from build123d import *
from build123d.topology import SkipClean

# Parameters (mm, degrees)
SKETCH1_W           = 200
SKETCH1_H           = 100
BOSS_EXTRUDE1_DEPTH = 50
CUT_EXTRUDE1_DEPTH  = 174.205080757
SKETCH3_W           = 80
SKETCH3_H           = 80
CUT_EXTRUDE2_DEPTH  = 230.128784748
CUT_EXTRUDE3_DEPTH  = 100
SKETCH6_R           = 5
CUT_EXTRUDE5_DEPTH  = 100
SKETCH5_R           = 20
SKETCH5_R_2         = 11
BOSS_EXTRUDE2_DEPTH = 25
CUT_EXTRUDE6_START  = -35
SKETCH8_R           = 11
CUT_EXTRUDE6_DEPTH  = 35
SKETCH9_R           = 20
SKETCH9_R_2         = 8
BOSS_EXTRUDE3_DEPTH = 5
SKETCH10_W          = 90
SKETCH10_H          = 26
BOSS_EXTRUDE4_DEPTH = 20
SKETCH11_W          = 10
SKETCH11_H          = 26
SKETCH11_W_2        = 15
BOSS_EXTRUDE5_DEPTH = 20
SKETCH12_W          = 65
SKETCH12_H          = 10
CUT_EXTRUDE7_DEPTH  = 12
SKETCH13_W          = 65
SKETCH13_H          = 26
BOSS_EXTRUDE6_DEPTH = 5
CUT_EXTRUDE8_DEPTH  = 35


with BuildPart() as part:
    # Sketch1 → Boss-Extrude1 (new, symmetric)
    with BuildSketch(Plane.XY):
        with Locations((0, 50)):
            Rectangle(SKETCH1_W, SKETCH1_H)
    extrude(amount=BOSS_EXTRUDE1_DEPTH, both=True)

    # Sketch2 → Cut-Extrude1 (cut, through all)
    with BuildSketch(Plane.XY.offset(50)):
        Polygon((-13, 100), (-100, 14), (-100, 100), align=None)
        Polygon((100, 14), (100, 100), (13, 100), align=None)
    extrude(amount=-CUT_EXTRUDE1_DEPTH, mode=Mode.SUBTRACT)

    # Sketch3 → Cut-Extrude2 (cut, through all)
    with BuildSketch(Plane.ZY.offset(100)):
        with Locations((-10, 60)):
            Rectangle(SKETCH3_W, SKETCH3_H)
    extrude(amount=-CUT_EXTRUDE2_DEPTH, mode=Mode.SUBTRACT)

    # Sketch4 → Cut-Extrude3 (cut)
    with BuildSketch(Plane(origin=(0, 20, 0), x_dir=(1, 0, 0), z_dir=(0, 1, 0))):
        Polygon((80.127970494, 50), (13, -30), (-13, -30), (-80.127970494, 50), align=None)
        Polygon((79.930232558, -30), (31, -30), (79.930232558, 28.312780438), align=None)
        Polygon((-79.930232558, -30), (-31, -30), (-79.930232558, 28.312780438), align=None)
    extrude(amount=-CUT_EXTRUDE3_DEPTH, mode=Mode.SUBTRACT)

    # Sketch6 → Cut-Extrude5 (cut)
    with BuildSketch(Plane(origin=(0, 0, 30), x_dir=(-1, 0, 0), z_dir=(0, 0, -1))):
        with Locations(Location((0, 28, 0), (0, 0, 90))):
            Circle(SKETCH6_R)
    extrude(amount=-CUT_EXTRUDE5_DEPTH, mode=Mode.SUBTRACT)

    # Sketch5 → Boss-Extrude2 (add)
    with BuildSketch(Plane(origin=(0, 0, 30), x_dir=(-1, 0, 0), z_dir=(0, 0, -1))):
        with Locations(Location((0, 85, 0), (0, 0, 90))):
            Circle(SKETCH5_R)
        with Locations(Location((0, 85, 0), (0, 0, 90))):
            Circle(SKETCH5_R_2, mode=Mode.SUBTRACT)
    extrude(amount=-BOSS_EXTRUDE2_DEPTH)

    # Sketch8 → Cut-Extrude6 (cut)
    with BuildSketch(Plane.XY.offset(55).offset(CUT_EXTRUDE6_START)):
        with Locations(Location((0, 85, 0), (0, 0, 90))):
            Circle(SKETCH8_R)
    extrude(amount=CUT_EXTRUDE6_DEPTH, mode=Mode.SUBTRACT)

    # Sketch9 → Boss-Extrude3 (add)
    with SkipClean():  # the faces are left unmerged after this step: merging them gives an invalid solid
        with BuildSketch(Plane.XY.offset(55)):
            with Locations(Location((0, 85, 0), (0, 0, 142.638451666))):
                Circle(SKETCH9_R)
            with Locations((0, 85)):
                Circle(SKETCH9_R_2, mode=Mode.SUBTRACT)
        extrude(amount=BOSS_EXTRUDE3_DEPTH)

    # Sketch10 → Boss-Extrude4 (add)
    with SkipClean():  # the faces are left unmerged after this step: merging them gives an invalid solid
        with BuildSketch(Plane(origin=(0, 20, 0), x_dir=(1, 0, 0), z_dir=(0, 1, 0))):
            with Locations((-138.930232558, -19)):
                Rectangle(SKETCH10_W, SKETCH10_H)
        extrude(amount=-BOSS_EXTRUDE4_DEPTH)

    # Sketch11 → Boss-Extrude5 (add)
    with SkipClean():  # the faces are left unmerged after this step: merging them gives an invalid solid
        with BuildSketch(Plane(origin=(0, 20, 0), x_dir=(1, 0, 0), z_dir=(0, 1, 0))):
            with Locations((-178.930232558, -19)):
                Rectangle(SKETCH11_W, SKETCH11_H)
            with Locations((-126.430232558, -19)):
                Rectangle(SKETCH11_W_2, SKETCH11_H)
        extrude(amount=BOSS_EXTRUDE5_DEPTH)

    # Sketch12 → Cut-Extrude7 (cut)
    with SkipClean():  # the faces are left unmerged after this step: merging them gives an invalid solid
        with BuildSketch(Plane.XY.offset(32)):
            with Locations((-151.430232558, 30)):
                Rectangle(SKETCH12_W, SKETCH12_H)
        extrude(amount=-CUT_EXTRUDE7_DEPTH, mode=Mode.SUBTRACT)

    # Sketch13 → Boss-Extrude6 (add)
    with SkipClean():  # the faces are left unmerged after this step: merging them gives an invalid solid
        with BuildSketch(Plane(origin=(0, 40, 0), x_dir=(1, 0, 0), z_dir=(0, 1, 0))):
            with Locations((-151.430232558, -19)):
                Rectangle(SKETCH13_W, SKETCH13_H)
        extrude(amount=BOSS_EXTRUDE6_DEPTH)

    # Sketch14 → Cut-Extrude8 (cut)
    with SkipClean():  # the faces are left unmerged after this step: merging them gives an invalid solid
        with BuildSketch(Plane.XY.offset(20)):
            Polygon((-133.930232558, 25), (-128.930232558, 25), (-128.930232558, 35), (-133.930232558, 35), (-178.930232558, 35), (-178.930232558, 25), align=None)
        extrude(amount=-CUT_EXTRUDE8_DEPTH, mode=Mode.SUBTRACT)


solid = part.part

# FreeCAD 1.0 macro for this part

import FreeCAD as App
import Part
import Sketcher
Q = App.Units.Quantity

doc = App.newDocument("Part")
params = doc.addObject("Spreadsheet::Sheet", "Params")
for row, (alias, value) in enumerate([
    ("sketch1_width", "200 mm"),
    ("sketch1_height", "100 mm"),
    ("pad1_length", "100 mm"),
    ("sketch2_width", "87 mm"),
    ("sketch2_height", "86 mm"),
    ("sketch3_width", "80 mm"),
    ("sketch4_width", "26 mm"),
    ("pocket3_length", "100 mm"),
    ("sketch5_diameter", "10 mm"),
    ("pocket4_length", "100 mm"),
    ("sketch6_diameter", "40 mm"),
    ("sketch6_diameter2", "22 mm"),
    ("pad2_length", "25 mm"),
    ("sketch7_diameter", "22 mm"),
    ("pocket5_length", "35 mm"),
    ("sketch8_diameter", "40 mm"),
    ("sketch8_diameter2", "16 mm"),
    ("pad3_length", "5 mm"),
    ("sketch9_width", "90 mm"),
    ("sketch9_height", "26 mm"),
    ("pad4_length", "20 mm"),
    ("sketch10_width", "10 mm"),
    ("sketch10_width2", "15 mm"),
    ("sketch10_height", "26 mm"),
    ("pad5_length", "20 mm"),
    ("sketch11_width", "65 mm"),
    ("sketch11_height", "10 mm"),
    ("pocket6_length", "12 mm"),
    ("sketch12_width", "65 mm"),
    ("sketch12_height", "26 mm"),
    ("pad6_length", "5 mm"),
    ("sketch13_width", "50 mm"),
    ("sketch13_height", "10 mm"),
    ("pocket7_length", "35 mm"),
], start=1):
    params.set(f"A{row}", alias)
    params.set(f"B{row}", "=" + value)
    params.setAlias(f"B{row}", alias)

body = doc.addObject("PartDesign::Body", "Body")

# Sketch on XY plane
sketch1 = doc.addObject("Sketcher::SketchObject", "Sketch")
body.addObject(sketch1)
sketch1.AttachmentSupport = (doc.XY_Plane, [""])
sketch1.MapMode = "FlatFace"
sketch1.addGeometry([
    Part.LineSegment(App.Vector(-100, 100, 0), App.Vector(-100, 0, 0)),
    Part.LineSegment(App.Vector(-100, 0, 0), App.Vector(100, 0, 0)),
    Part.LineSegment(App.Vector(100, 0, 0), App.Vector(100, 100, 0)),
    Part.LineSegment(App.Vector(100, 100, 0), App.Vector(-100, 100, 0)),
], False)
sketch1.addConstraint([
    Sketcher.Constraint("Coincident", 0, 2, 1, 1),
    Sketcher.Constraint("Coincident", 1, 2, 2, 1),
    Sketcher.Constraint("Coincident", 2, 2, 3, 1),
    Sketcher.Constraint("Coincident", 3, 2, 0, 1),
    Sketcher.Constraint("Vertical", 0),
    Sketcher.Constraint("Horizontal", 1),
    Sketcher.Constraint("Vertical", 2),
    Sketcher.Constraint("Horizontal", 3),
    Sketcher.Constraint("Symmetric", 0, 2, 1, 2, -1, 1),
    Sketcher.Constraint("DistanceX", 1, 1, 1, 2, 200.0),
    Sketcher.Constraint("DistanceY", 0, 2, 0, 1, 100.0),
])
sketch1.setExpression("Constraints[9]", "Params.sketch1_width")
sketch1.setExpression("Constraints[10]", "Params.sketch1_height")
pad1 = doc.addObject("PartDesign::Pad", "Pad")
body.addObject(pad1)
pad1.Profile = sketch1
pad1.setExpression("Length", "Params.pad1_length")
pad1.Midplane = True

# Sketch on XY plane
sketch2 = doc.addObject("Sketcher::SketchObject", "Sketch001")
body.addObject(sketch2)
sketch2.AttachmentSupport = (doc.XY_Plane, [""])
sketch2.MapMode = "FlatFace"
sketch2.AttachmentOffset = App.Placement(App.Vector(0, 0, 50), App.Rotation())
sketch2.addGeometry([
    Part.LineSegment(App.Vector(-100, 14, 0), App.Vector(-13, 100, 0)),  # 0
    Part.LineSegment(App.Vector(-13, 100, 0), App.Vector(-100, 100, 0)),  # 1
    Part.LineSegment(App.Vector(-100, 100, 0), App.Vector(-100, 14, 0)),  # 2
    Part.LineSegment(App.Vector(100, 14, 0), App.Vector(100, 100, 0)),  # 3
    Part.LineSegment(App.Vector(100, 100, 0), App.Vector(13, 100, 0)),  # 4
    Part.LineSegment(App.Vector(13, 100, 0), App.Vector(100, 14, 0)),  # 5
], False)
sketch2.addConstraint([
    Sketcher.Constraint("Coincident", 0, 2, 1, 1),
    Sketcher.Constraint("Coincident", 1, 2, 2, 1),
    Sketcher.Constraint("Coincident", 2, 2, 0, 1),
    Sketcher.Constraint("Coincident", 3, 2, 4, 1),
    Sketcher.Constraint("Coincident", 4, 2, 5, 1),
    Sketcher.Constraint("Coincident", 5, 2, 3, 1),
    Sketcher.Constraint("Horizontal", 1),
    Sketcher.Constraint("Vertical", 2),
    Sketcher.Constraint("Vertical", 3),
    Sketcher.Constraint("Horizontal", 4),
    Sketcher.Constraint("Symmetric", 1, 2, 3, 2, -2),
    Sketcher.Constraint("Horizontal", 2, 2, 5, 2),
    Sketcher.Constraint("Equal", 1, 4),
    Sketcher.Constraint("DistanceX", 1, 2, 1, 1, 87.0),
    Sketcher.Constraint("DistanceY", 2, 2, 2, 1, 86.0),
    Sketcher.Constraint("DistanceX", 0, 2, -1, 1, 13.0),
    Sketcher.Constraint("DistanceY", -1, 1, 0, 2, 100.0),
])
sketch2.setExpression("Constraints[13]", "Params.sketch2_width")
sketch2.setExpression("Constraints[14]", "Params.sketch2_height")
pocket1 = doc.addObject("PartDesign::Pocket", "Pocket")
body.addObject(pocket1)
pocket1.Profile = sketch2
pocket1.Type = "ThroughAll"

# Sketch on YZ plane
sketch3 = doc.addObject("Sketcher::SketchObject", "Sketch002")
body.addObject(sketch3)
sketch3.AttachmentSupport = (doc.YZ_Plane, [""])
sketch3.MapMode = "FlatFace"
sketch3.AttachmentOffset = App.Placement(App.Vector(0, 0, -100), App.Rotation())
sketch3.addGeometry([
    Part.LineSegment(App.Vector(100, -50, 0), App.Vector(20, -50, 0)),
    Part.LineSegment(App.Vector(20, -50, 0), App.Vector(20, 30, 0)),
    Part.LineSegment(App.Vector(20, 30, 0), App.Vector(100, 30, 0)),
    Part.LineSegment(App.Vector(100, 30, 0), App.Vector(100, -50, 0)),
], False)
sketch3.addConstraint([
    Sketcher.Constraint("Coincident", 0, 2, 1, 1),
    Sketcher.Constraint("Coincident", 1, 2, 2, 1),
    Sketcher.Constraint("Coincident", 2, 2, 3, 1),
    Sketcher.Constraint("Coincident", 3, 2, 0, 1),
    Sketcher.Constraint("Horizontal", 0),
    Sketcher.Constraint("Vertical", 1),
    Sketcher.Constraint("Horizontal", 2),
    Sketcher.Constraint("Vertical", 3),
    Sketcher.Constraint("Equal", 2, 1),
    Sketcher.Constraint("DistanceX", 0, 2, 0, 1, 80.0),
    Sketcher.Constraint("DistanceX", -1, 1, 0, 2, 20.0),
    Sketcher.Constraint("DistanceY", 0, 2, -1, 1, 50.0),
])
sketch3.setExpression("Constraints[9]", "Params.sketch3_width")
pocket2 = doc.addObject("PartDesign::Pocket", "Pocket001")
body.addObject(pocket2)
pocket2.Profile = sketch3
pocket2.Type = "ThroughAll"
pocket2.Reversed = True

# Sketch on XZ plane
sketch4 = doc.addObject("Sketcher::SketchObject", "Sketch003")
body.addObject(sketch4)
sketch4.AttachmentSupport = (doc.XZ_Plane, [""])
sketch4.MapMode = "FlatFace"
sketch4.AttachmentOffset = App.Placement(App.Vector(0, 0, -20), App.Rotation())
sketch4.addGeometry([
    Part.LineSegment(App.Vector(13, 30, 0), App.Vector(80, -50, 0)),  # 0
    Part.LineSegment(App.Vector(80, -50, 0), App.Vector(-80, -50, 0)),  # 1
    Part.LineSegment(App.Vector(-80, -50, 0), App.Vector(-13, 30, 0)),  # 2
    Part.LineSegment(App.Vector(-13, 30, 0), App.Vector(13, 30, 0)),  # 3
    Part.LineSegment(App.Vector(31, 30, 0), App.Vector(80, 30, 0)),  # 4
    Part.LineSegment(App.Vector(80, 30, 0), App.Vector(80, -28, 0)),  # 5
    Part.LineSegment(App.Vector(80, -28, 0), App.Vector(31, 30, 0)),  # 6
    Part.LineSegment(App.Vector(-80, 30, 0), App.Vector(-31, 30, 0)),  # 7
    Part.LineSegment(App.Vector(-31, 30, 0), App.Vector(-80, -28, 0)),  # 8
    Part.LineSegment(App.Vector(-80, -28, 0), App.Vector(-80, 30, 0)),  # 9
], False)
sketch4.addConstraint([
    Sketcher.Constraint("Coincident", 0, 2, 1, 1),
    Sketcher.Constraint("Coincident", 1, 2, 2, 1),
    Sketcher.Constraint("Coincident", 2, 2, 3, 1),
    Sketcher.Constraint("Coincident", 3, 2, 0, 1),
    Sketcher.Constraint("Coincident", 4, 2, 5, 1),
    Sketcher.Constraint("Coincident", 5, 2, 6, 1),
    Sketcher.Constraint("Coincident", 6, 2, 4, 1),
    Sketcher.Constraint("Coincident", 7, 2, 8, 1),
    Sketcher.Constraint("Coincident", 8, 2, 9, 1),
    Sketcher.Constraint("Coincident", 9, 2, 7, 1),
    Sketcher.Constraint("Horizontal", 1),
    Sketcher.Constraint("Horizontal", 3),
    Sketcher.Constraint("Horizontal", 4),
    Sketcher.Constraint("Vertical", 5),
    Sketcher.Constraint("Horizontal", 7),
    Sketcher.Constraint("Vertical", 9),
    Sketcher.Constraint("Symmetric", 6, 2, 7, 2, -2),
    Sketcher.Constraint("Symmetric", 5, 2, 8, 2, -2),
    Sketcher.Constraint("Parallel", 0, 6),
    Sketcher.Constraint("Parallel", 2, 8),
    Sketcher.Constraint("Horizontal", 3, 2, 4, 2),
    Sketcher.Constraint("DistanceX", 3, 1, 3, 2, 26.0),
    Sketcher.Constraint("Angle", 0, Q("-50 deg")),
    Sketcher.Constraint("DistanceY", 0, 2, -1, 1, 50.0),
    Sketcher.Constraint("DistanceX", 2, 2, -1, 1, 13.0),
    Sketcher.Constraint("DistanceY", -1, 1, 2, 2, 30.0),
    Sketcher.Constraint("DistanceX", -1, 1, 6, 2, 31.0),
    Sketcher.Constraint("DistanceY", 5, 2, 5, 1, 58.31278),
])
sketch4.setExpression("Constraints[21]", "Params.sketch4_width")
pocket3 = doc.addObject("PartDesign::Pocket", "Pocket002")
body.addObject(pocket3)
pocket3.Profile = sketch4
pocket3.setExpression("Length", "Params.pocket3_length")
pocket3.Reversed = True

# Sketch on XY plane
sketch5 = doc.addObject("Sketcher::SketchObject", "Sketch004")
body.addObject(sketch5)
sketch5.AttachmentSupport = (doc.XY_Plane, [""])
sketch5.MapMode = "FlatFace"
sketch5.AttachmentOffset = App.Placement(App.Vector(0, 0, 30), App.Rotation())
sketch5.addGeometry(Part.Circle(App.Vector(0, 28, 0), App.Vector(0, 0, 1), 5), False)
sketch5.addConstraint([
    Sketcher.Constraint("PointOnObject", 0, 3, -2),
    Sketcher.Constraint("Diameter", 0, 10.0),
    Sketcher.Constraint("DistanceY", -1, 1, 0, 3, 28.0),
])
sketch5.setExpression("Constraints[1]", "Params.sketch5_diameter")
pocket4 = doc.addObject("PartDesign::Pocket", "Pocket003")
body.addObject(pocket4)
pocket4.Profile = sketch5
pocket4.setExpression("Length", "Params.pocket4_length")
pocket4.Reversed = True

# Sketch on XY plane
sketch6 = doc.addObject("Sketcher::SketchObject", "Sketch005")
body.addObject(sketch6)
sketch6.AttachmentSupport = (doc.XY_Plane, [""])
sketch6.MapMode = "FlatFace"
sketch6.AttachmentOffset = App.Placement(App.Vector(0, 0, 30), App.Rotation())
sketch6.addGeometry([
    Part.Circle(App.Vector(0, 85, 0), App.Vector(0, 0, 1), 20),
    Part.Circle(App.Vector(0, 85, 0), App.Vector(0, 0, 1), 11),
], False)
sketch6.addConstraint([
    Sketcher.Constraint("Coincident", 1, 3, 0, 3),
    Sketcher.Constraint("PointOnObject", 0, 3, -2),
    Sketcher.Constraint("Diameter", 0, 40.0),
    Sketcher.Constraint("Diameter", 1, 22.0),
    Sketcher.Constraint("DistanceY", -1, 1, 0, 3, 85.0),
])
sketch6.setExpression("Constraints[2]", "Params.sketch6_diameter")
sketch6.setExpression("Constraints[3]", "Params.sketch6_diameter2")
pad2 = doc.addObject("PartDesign::Pad", "Pad001")
body.addObject(pad2)
pad2.Profile = sketch6
pad2.setExpression("Length", "Params.pad2_length")

# Sketch on XY plane
sketch7 = doc.addObject("Sketcher::SketchObject", "Sketch006")
body.addObject(sketch7)
sketch7.AttachmentSupport = (doc.XY_Plane, [""])
sketch7.MapMode = "FlatFace"
sketch7.AttachmentOffset = App.Placement(App.Vector(0, 0, 20), App.Rotation())
sketch7.addGeometry(Part.Circle(App.Vector(0, 85, 0), App.Vector(0, 0, 1), 11), False)
sketch7.addConstraint([
    Sketcher.Constraint("PointOnObject", 0, 3, -2),
    Sketcher.Constraint("Diameter", 0, 22.0),
    Sketcher.Constraint("DistanceY", -1, 1, 0, 3, 85.0),
])
sketch7.setExpression("Constraints[1]", "Params.sketch7_diameter")
pocket5 = doc.addObject("PartDesign::Pocket", "Pocket004")
body.addObject(pocket5)
pocket5.Profile = sketch7
pocket5.setExpression("Length", "Params.pocket5_length")
pocket5.Reversed = True

# Sketch on XY plane
sketch8 = doc.addObject("Sketcher::SketchObject", "Sketch007")
body.addObject(sketch8)
sketch8.AttachmentSupport = (doc.XY_Plane, [""])
sketch8.MapMode = "FlatFace"
sketch8.AttachmentOffset = App.Placement(App.Vector(0, 0, 55), App.Rotation())
sketch8.addGeometry([
    Part.Circle(App.Vector(0, 85, 0), App.Vector(0, 0, 1), 20),
    Part.Circle(App.Vector(0, 85, 0), App.Vector(0, 0, 1), 8),
], False)
sketch8.addConstraint([
    Sketcher.Constraint("Coincident", 1, 3, 0, 3),
    Sketcher.Constraint("PointOnObject", 0, 3, -2),
    Sketcher.Constraint("Diameter", 0, 40.0),
    Sketcher.Constraint("Diameter", 1, 16.0),
    Sketcher.Constraint("DistanceY", -1, 1, 0, 3, 85.0),
])
sketch8.setExpression("Constraints[2]", "Params.sketch8_diameter")
sketch8.setExpression("Constraints[3]", "Params.sketch8_diameter2")
pad3 = doc.addObject("PartDesign::Pad", "Pad002")
body.addObject(pad3)
pad3.Profile = sketch8
pad3.setExpression("Length", "Params.pad3_length")

# Sketch on XZ plane
sketch9 = doc.addObject("Sketcher::SketchObject", "Sketch008")
body.addObject(sketch9)
sketch9.AttachmentSupport = (doc.XZ_Plane, [""])
sketch9.MapMode = "FlatFace"
sketch9.AttachmentOffset = App.Placement(App.Vector(0, 0, -20), App.Rotation())
sketch9.addGeometry([
    Part.LineSegment(App.Vector(-184, 6, 0), App.Vector(-184, 32, 0)),
    Part.LineSegment(App.Vector(-184, 32, 0), App.Vector(-94, 32, 0)),
    Part.LineSegment(App.Vector(-94, 32, 0), App.Vector(-94, 6, 0)),
    Part.LineSegment(App.Vector(-94, 6, 0), App.Vector(-184, 6, 0)),
], False)
sketch9.addConstraint([
    Sketcher.Constraint("Coincident", 0, 2, 1, 1),
    Sketcher.Constraint("Coincident", 1, 2, 2, 1),
    Sketcher.Constraint("Coincident", 2, 2, 3, 1),
    Sketcher.Constraint("Coincident", 3, 2, 0, 1),
    Sketcher.Constraint("Vertical", 0),
    Sketcher.Constraint("Horizontal", 1),
    Sketcher.Constraint("Vertical", 2),
    Sketcher.Constraint("Horizontal", 3),
    Sketcher.Constraint("DistanceX", 1, 1, 1, 2, 90.0),
    Sketcher.Constraint("DistanceY", 0, 1, 0, 2, 26.0),
    Sketcher.Constraint("DistanceY", -1, 1, 0, 2, 32.0),
    Sketcher.Constraint("DistanceX", 0, 2, -1, 1, 183.930233),
])
sketch9.setExpression("Constraints[8]", "Params.sketch9_width")
sketch9.setExpression("Constraints[9]", "Params.sketch9_height")
pad4 = doc.addObject("PartDesign::Pad", "Pad003")
body.addObject(pad4)
pad4.Profile = sketch9
pad4.setExpression("Length", "Params.pad4_length")

# Sketch on XZ plane
sketch10 = doc.addObject("Sketcher::SketchObject", "Sketch009")
body.addObject(sketch10)
sketch10.AttachmentSupport = (doc.XZ_Plane, [""])
sketch10.MapMode = "FlatFace"
sketch10.AttachmentOffset = App.Placement(App.Vector(0, 0, -20), App.Rotation())
sketch10.addGeometry([
    Part.LineSegment(App.Vector(-184, 6, 0), App.Vector(-184, 32, 0)),  # 0
    Part.LineSegment(App.Vector(-184, 32, 0), App.Vector(-174, 32, 0)),  # 1
    Part.LineSegment(App.Vector(-174, 32, 0), App.Vector(-174, 6, 0)),  # 2
    Part.LineSegment(App.Vector(-174, 6, 0), App.Vector(-184, 6, 0)),  # 3
    Part.LineSegment(App.Vector(-134, 6, 0), App.Vector(-134, 32, 0)),  # 4
    Part.LineSegment(App.Vector(-134, 32, 0), App.Vector(-119, 32, 0)),  # 5
    Part.LineSegment(App.Vector(-119, 32, 0), App.Vector(-119, 6, 0)),  # 6
    Part.LineSegment(App.Vector(-119, 6, 0), App.Vector(-134, 6, 0)),  # 7
], False)
sketch10.addConstraint([
    Sketcher.Constraint("Coincident", 0, 2, 1, 1),
    Sketcher.Constraint("Coincident", 1, 2, 2, 1),
    Sketcher.Constraint("Coincident", 2, 2, 3, 1),
    Sketcher.Constraint("Coincident", 3, 2, 0, 1),
    Sketcher.Constraint("Coincident", 4, 2, 5, 1),
    Sketcher.Constraint("Coincident", 5, 2, 6, 1),
    Sketcher.Constraint("Coincident", 6, 2, 7, 1),
    Sketcher.Constraint("Coincident", 7, 2, 4, 1),
    Sketcher.Constraint("Vertical", 0),
    Sketcher.Constraint("Horizontal", 1),
    Sketcher.Constraint("Vertical", 2),
    Sketcher.Constraint("Horizontal", 3),
    Sketcher.Constraint("Vertical", 4),
    Sketcher.Constraint("Horizontal", 5),
    Sketcher.Constraint("Vertical", 6),
    Sketcher.Constraint("Horizontal", 7),
    Sketcher.Constraint("Horizontal", 1, 2, 4, 2),
    Sketcher.Constraint("Horizontal", 3, 2, 6, 2),
    Sketcher.Constraint("DistanceX", 1, 1, 1, 2, 10.0),
    Sketcher.Constraint("DistanceX", 5, 1, 5, 2, 15.0),
    Sketcher.Constraint("DistanceY", 0, 1, 0, 2, 26.0),
    Sketcher.Constraint("DistanceY", -1, 1, 0, 2, 32.0),
    Sketcher.Constraint("DistanceX", 1, 2, 4, 2, 40.0),
    Sketcher.Constraint("DistanceX", 0, 2, -1, 1, 183.930233),
])
sketch10.setExpression("Constraints[18]", "Params.sketch10_width")
sketch10.setExpression("Constraints[19]", "Params.sketch10_width2")
sketch10.setExpression("Constraints[20]", "Params.sketch10_height")
pad5 = doc.addObject("PartDesign::Pad", "Pad004")
body.addObject(pad5)
pad5.Profile = sketch10
pad5.setExpression("Length", "Params.pad5_length")
pad5.Reversed = True

# Sketch on XY plane
sketch11 = doc.addObject("Sketcher::SketchObject", "Sketch010")
body.addObject(sketch11)
sketch11.AttachmentSupport = (doc.XY_Plane, [""])
sketch11.MapMode = "FlatFace"
sketch11.AttachmentOffset = App.Placement(App.Vector(0, 0, 32), App.Rotation())
sketch11.addGeometry([
    Part.LineSegment(App.Vector(-184, 35, 0), App.Vector(-184, 25, 0)),
    Part.LineSegment(App.Vector(-184, 25, 0), App.Vector(-119, 25, 0)),
    Part.LineSegment(App.Vector(-119, 25, 0), App.Vector(-119, 35, 0)),
    Part.LineSegment(App.Vector(-119, 35, 0), App.Vector(-184, 35, 0)),
], False)
sketch11.addConstraint([
    Sketcher.Constraint("Coincident", 0, 2, 1, 1),
    Sketcher.Constraint("Coincident", 1, 2, 2, 1),
    Sketcher.Constraint("Coincident", 2, 2, 3, 1),
    Sketcher.Constraint("Coincident", 3, 2, 0, 1),
    Sketcher.Constraint("Vertical", 0),
    Sketcher.Constraint("Horizontal", 1),
    Sketcher.Constraint("Vertical", 2),
    Sketcher.Constraint("Horizontal", 3),
    Sketcher.Constraint("DistanceX", 1, 1, 1, 2, 65.0),
    Sketcher.Constraint("DistanceY", 0, 2, 0, 1, 10.0),
    Sketcher.Constraint("DistanceY", -1, 1, 0, 2, 25.0),
    Sketcher.Constraint("DistanceX", 0, 2, -1, 1, 183.930233),
])
sketch11.setExpression("Constraints[8]", "Params.sketch11_width")
sketch11.setExpression("Constraints[9]", "Params.sketch11_height")
pocket6 = doc.addObject("PartDesign::Pocket", "Pocket005")
body.addObject(pocket6)
pocket6.Profile = sketch11
pocket6.setExpression("Length", "Params.pocket6_length")

# Sketch on XZ plane
sketch12 = doc.addObject("Sketcher::SketchObject", "Sketch011")
body.addObject(sketch12)
sketch12.AttachmentSupport = (doc.XZ_Plane, [""])
sketch12.MapMode = "FlatFace"
sketch12.AttachmentOffset = App.Placement(App.Vector(0, 0, -40), App.Rotation())
sketch12.addGeometry([
    Part.LineSegment(App.Vector(-184, 6, 0), App.Vector(-184, 32, 0)),
    Part.LineSegment(App.Vector(-184, 32, 0), App.Vector(-119, 32, 0)),
    Part.LineSegment(App.Vector(-119, 32, 0), App.Vector(-119, 6, 0)),
    Part.LineSegment(App.Vector(-119, 6, 0), App.Vector(-184, 6, 0)),
], False)
sketch12.addConstraint([
    Sketcher.Constraint("Coincident", 0, 2, 1, 1),
    Sketcher.Constraint("Coincident", 1, 2, 2, 1),
    Sketcher.Constraint("Coincident", 2, 2, 3, 1),
    Sketcher.Constraint("Coincident", 3, 2, 0, 1),
    Sketcher.Constraint("Vertical", 0),
    Sketcher.Constraint("Horizontal", 1),
    Sketcher.Constraint("Vertical", 2),
    Sketcher.Constraint("Horizontal", 3),
    Sketcher.Constraint("DistanceX", 1, 1, 1, 2, 65.0),
    Sketcher.Constraint("DistanceY", 0, 1, 0, 2, 26.0),
    Sketcher.Constraint("DistanceY", -1, 1, 0, 2, 32.0),
    Sketcher.Constraint("DistanceX", 0, 2, -1, 1, 183.930233),
])
sketch12.setExpression("Constraints[8]", "Params.sketch12_width")
sketch12.setExpression("Constraints[9]", "Params.sketch12_height")
pad6 = doc.addObject("PartDesign::Pad", "Pad005")
body.addObject(pad6)
pad6.Profile = sketch12
pad6.setExpression("Length", "Params.pad6_length")
pad6.Reversed = True

# Sketch on XY plane
sketch13 = doc.addObject("Sketcher::SketchObject", "Sketch012")
body.addObject(sketch13)
sketch13.AttachmentSupport = (doc.XY_Plane, [""])
sketch13.MapMode = "FlatFace"
sketch13.AttachmentOffset = App.Placement(App.Vector(0, 0, 20), App.Rotation())
sketch13.addGeometry([
    Part.LineSegment(App.Vector(-129, 25, 0), App.Vector(-129, 35, 0)),
    Part.LineSegment(App.Vector(-129, 35, 0), App.Vector(-179, 35, 0)),
    Part.LineSegment(App.Vector(-179, 35, 0), App.Vector(-179, 25, 0)),
    Part.LineSegment(App.Vector(-179, 25, 0), App.Vector(-129, 25, 0)),
], False)
sketch13.addConstraint([
    Sketcher.Constraint("Coincident", 0, 2, 1, 1),
    Sketcher.Constraint("Coincident", 1, 2, 2, 1),
    Sketcher.Constraint("Coincident", 2, 2, 3, 1),
    Sketcher.Constraint("Coincident", 3, 2, 0, 1),
    Sketcher.Constraint("Vertical", 0),
    Sketcher.Constraint("Horizontal", 1),
    Sketcher.Constraint("Vertical", 2),
    Sketcher.Constraint("Horizontal", 3),
    Sketcher.Constraint("DistanceX", 1, 2, 1, 1, 50.0),
    Sketcher.Constraint("DistanceY", 0, 1, 0, 2, 10.0),
    Sketcher.Constraint("DistanceY", -1, 1, 0, 2, 35.0),
    Sketcher.Constraint("DistanceX", 0, 2, -1, 1, 128.930233),
])
sketch13.setExpression("Constraints[8]", "Params.sketch13_width")
sketch13.setExpression("Constraints[9]", "Params.sketch13_height")
pocket7 = doc.addObject("PartDesign::Pocket", "Pocket006")
body.addObject(pocket7)
pocket7.Profile = sketch13
pocket7.setExpression("Length", "Params.pocket7_length")

doc.recompute()
